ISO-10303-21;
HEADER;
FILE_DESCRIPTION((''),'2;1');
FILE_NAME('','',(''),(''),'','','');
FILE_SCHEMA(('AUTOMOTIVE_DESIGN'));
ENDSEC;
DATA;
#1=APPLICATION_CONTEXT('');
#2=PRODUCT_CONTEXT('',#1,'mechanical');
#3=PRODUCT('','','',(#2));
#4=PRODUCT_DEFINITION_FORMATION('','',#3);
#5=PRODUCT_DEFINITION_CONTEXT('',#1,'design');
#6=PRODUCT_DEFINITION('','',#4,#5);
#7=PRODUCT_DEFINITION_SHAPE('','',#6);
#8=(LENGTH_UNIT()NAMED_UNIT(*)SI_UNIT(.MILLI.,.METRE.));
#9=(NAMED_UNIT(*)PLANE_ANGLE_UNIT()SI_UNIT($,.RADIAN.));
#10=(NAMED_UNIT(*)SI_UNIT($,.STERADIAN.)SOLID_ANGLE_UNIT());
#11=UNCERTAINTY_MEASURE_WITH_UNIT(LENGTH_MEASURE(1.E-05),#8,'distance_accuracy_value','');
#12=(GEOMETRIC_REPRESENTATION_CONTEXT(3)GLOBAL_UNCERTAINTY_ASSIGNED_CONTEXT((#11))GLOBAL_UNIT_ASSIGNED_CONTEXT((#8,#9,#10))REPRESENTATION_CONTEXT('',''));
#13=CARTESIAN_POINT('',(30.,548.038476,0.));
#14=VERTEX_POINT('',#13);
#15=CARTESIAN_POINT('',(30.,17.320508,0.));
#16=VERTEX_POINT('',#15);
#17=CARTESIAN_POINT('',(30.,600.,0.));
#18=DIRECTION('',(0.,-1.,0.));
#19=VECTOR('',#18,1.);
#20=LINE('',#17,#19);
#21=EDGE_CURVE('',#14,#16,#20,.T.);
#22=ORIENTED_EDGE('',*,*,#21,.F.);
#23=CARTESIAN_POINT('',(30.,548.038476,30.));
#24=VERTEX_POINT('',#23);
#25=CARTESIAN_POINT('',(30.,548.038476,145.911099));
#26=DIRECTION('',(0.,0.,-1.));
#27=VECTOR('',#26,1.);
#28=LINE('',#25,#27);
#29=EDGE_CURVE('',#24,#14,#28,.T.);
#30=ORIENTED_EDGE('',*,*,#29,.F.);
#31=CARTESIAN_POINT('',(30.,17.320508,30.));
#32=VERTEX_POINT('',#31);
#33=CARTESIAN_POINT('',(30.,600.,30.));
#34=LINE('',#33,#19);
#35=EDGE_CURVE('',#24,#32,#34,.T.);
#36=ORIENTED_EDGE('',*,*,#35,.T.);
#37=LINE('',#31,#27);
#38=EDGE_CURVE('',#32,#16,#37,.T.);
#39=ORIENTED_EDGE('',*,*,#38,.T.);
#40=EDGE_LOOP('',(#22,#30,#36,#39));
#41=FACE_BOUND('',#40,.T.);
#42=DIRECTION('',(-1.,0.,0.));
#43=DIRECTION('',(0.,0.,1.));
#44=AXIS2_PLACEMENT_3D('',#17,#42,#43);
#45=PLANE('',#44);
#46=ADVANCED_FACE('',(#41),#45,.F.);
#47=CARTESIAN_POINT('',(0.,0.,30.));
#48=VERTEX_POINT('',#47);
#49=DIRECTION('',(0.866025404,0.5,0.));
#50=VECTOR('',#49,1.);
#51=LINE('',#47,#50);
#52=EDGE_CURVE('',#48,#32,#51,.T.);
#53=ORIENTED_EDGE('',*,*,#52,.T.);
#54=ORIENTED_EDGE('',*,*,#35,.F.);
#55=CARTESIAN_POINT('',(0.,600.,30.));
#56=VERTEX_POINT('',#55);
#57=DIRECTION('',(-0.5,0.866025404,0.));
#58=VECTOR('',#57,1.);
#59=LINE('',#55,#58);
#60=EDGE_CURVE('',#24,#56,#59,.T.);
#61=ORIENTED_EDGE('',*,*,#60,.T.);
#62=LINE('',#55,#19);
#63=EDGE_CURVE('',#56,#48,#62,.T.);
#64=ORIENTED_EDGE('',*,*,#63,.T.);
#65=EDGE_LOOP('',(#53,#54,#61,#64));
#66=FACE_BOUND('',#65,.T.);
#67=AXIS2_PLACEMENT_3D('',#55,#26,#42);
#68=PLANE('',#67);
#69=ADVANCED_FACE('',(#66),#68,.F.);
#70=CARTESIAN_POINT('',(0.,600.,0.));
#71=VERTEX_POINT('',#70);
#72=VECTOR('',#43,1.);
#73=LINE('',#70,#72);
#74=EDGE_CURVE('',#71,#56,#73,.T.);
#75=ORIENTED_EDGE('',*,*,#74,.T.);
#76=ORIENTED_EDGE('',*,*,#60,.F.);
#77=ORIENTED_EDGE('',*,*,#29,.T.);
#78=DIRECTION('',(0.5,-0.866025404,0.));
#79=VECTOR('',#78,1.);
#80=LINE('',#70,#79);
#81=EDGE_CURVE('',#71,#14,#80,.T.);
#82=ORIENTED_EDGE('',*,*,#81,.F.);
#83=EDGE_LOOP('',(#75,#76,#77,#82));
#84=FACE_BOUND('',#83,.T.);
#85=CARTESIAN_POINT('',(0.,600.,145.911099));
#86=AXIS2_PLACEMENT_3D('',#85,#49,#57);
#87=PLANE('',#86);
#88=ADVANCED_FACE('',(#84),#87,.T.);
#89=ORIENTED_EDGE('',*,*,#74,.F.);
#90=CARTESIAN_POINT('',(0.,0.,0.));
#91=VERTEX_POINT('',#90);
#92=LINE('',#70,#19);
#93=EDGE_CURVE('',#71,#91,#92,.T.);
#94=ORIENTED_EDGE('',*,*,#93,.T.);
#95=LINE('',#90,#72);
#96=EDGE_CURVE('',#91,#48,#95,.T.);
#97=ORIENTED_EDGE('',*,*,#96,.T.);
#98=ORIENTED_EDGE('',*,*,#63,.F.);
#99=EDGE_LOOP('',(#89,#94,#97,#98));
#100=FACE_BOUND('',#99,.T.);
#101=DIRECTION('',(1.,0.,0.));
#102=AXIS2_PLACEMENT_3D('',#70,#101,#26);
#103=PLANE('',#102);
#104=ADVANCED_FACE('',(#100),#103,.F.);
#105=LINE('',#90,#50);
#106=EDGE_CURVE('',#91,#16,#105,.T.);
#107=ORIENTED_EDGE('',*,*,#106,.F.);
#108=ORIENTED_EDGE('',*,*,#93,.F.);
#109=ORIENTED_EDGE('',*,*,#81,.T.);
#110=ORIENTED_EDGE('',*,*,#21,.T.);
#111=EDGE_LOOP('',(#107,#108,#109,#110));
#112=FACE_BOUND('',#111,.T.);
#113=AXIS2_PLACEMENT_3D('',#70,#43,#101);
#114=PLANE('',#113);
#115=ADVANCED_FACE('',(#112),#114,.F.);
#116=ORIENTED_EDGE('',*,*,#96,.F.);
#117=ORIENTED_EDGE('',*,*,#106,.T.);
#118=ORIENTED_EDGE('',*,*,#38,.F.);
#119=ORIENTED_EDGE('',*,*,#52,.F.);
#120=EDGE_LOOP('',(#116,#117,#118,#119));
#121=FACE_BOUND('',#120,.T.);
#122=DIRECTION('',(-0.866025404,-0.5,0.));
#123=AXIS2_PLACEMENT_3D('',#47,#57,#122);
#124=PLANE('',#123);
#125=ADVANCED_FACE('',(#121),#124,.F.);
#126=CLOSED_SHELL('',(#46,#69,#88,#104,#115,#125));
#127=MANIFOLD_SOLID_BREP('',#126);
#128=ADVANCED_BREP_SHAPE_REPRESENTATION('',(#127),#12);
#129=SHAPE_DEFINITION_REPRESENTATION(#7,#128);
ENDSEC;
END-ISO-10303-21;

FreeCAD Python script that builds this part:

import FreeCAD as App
import Part
import Sketcher
Q = App.Units.Quantity


def add_polygon(sketch, points):
    """Adds a closed chain of lines whose ends are joined by coincident constraints."""
    first, n = sketch.GeometryCount, len(points)
    for a, b in zip(points, points[1:] + points[:1]):
        sketch.addGeometry(Part.LineSegment(App.Vector(*a, 0), App.Vector(*b, 0)), False)
    for i in range(n):
        sketch.addConstraint(Sketcher.Constraint("Coincident", first + i, 2, first + (i + 1) % n, 1))

doc = App.newDocument("Part")
body = doc.addObject("PartDesign::Body", "Body")

# Sketch on XZ plane
sketch1 = body.newObject("Sketcher::SketchObject", "Sketch")
sketch1.AttachmentSupport = (doc.getObject("XZ_Plane"), [""])
sketch1.MapMode = "FlatFace"
add_polygon(sketch1, [(0, 0), (0, 30), (30, 30), (30, 0)])  # lines 0-3
sketch1.addConstraint([
    Sketcher.Constraint("Vertical", 0),
    Sketcher.Constraint("Horizontal", 1),
    Sketcher.Constraint("Vertical", 2),
    Sketcher.Constraint("Horizontal", 3),
    Sketcher.Constraint("Coincident", 3, 2, -1, 1),
    Sketcher.Constraint("Equal", 3, 0),
    Sketcher.Constraint("DistanceX", 1, 1, 1, 2, Q("30 mm")),
])
pad1 = body.newObject("PartDesign::Pad", "Pad")
pad1.Profile = sketch1
pad1.Length = 600
pad1.Reversed = True

# Sketch on XY plane
sketch2 = body.newObject("Sketcher::SketchObject", "Sketch001")
sketch2.AttachmentSupport = (doc.getObject("XY_Plane"), [""])
sketch2.MapMode = "FlatFace"
sketch2.AttachmentOffset = App.Placement(App.Vector(0, 0, 30), App.Rotation())
add_polygon(sketch2, [(30, 8.038476), (0, 0), (30, 0)])  # lines 0-2
sketch2.addConstraint([
    Sketcher.Constraint("Horizontal", 1),
    Sketcher.Constraint("Vertical", 2),
    Sketcher.Constraint("Coincident", 0, 2, -1, 1),
    Sketcher.Constraint("DistanceX", 1, 1, 1, 2, Q("30 mm")),
    Sketcher.Constraint("Angle", 0, Q("-165 deg")),
])
pocket1 = body.newObject("PartDesign::Pocket", "Pocket")
pocket1.Profile = sketch2
pocket1.Type = "UpToFirst"

# Sketch on XY plane
sketch3 = body.newObject("Sketcher::SketchObject", "Sketch002")
sketch3.AttachmentSupport = (doc.getObject("XY_Plane"), [""])
sketch3.MapMode = "FlatFace"
add_polygon(sketch3, [(0, 600), (30, 600), (30, 488.038476)])  # lines 0-2
sketch3.addConstraint([
    Sketcher.Constraint("Horizontal", 0),
    Sketcher.Constraint("Vertical", 1),
    Sketcher.Constraint("PointOnObject", 2, 2, -2),
    Sketcher.Constraint("DistanceX", 0, 1, 0, 2, Q("30 mm")),
    Sketcher.Constraint("Angle", 2, Q("105 deg")),
    Sketcher.Constraint("DistanceY", -1, 1, 0, 2, Q("600 mm")),
])
pocket2 = body.newObject("PartDesign::Pocket", "Pocket001")
pocket2.Profile = sketch3
pocket2.Type = "UpToFirst"
pocket2.Reversed = True

# Sketch on XY plane
sketch4 = body.newObject("Sketcher::SketchObject", "Sketch003")
sketch4.AttachmentSupport = (doc.getObject("XY_Plane"), [""])
sketch4.MapMode = "FlatFace"
add_polygon(sketch4, [(30, 17.320508), (30, 8.038476), (0, 0)])  # lines 0-2
sketch4.addConstraint([
    Sketcher.Constraint("Vertical", 0),
    Sketcher.Constraint("Coincident", 1, 2, -1, 1),
    Sketcher.Constraint("Angle", 1, Q("-165 deg")),
    Sketcher.Constraint("Angle", 2, Q("30 deg")),
    Sketcher.Constraint("DistanceX", -1, 1, 0, 2, Q("30 mm")),
])
pocket3 = body.newObject("PartDesign::Pocket", "Pocket002")
pocket3.Profile = sketch4
pocket3.Type = "ThroughAll"
pocket3.Reversed = True

# Sketch on XY plane
sketch5 = body.newObject("Sketcher::SketchObject", "Sketch004")
sketch5.AttachmentSupport = (doc.getObject("XY_Plane"), [""])
sketch5.MapMode = "FlatFace"
add_polygon(sketch5, [(30, 488.038476), (0, 600), (30, 548.038476)])  # lines 0-2
sketch5.addConstraint([
    Sketcher.Constraint("Vertical", 2),
    Sketcher.Constraint("PointOnObject", 0, 2, -2),
    Sketcher.Constraint("DistanceY", 2, 2, 2, 1, Q("60 mm")),
    Sketcher.Constraint("Angle", 0, Q("105 deg")),
    Sketcher.Constraint("Angle", 1, Q("-60 deg")),
    Sketcher.Constraint("DistanceY", -1, 1, 0, 2, Q("600 mm")),
])
pad2 = body.newObject("PartDesign::Pad", "Pad001")
pad2.Profile = sketch5
pad2.Length = 30

doc.recompute()
